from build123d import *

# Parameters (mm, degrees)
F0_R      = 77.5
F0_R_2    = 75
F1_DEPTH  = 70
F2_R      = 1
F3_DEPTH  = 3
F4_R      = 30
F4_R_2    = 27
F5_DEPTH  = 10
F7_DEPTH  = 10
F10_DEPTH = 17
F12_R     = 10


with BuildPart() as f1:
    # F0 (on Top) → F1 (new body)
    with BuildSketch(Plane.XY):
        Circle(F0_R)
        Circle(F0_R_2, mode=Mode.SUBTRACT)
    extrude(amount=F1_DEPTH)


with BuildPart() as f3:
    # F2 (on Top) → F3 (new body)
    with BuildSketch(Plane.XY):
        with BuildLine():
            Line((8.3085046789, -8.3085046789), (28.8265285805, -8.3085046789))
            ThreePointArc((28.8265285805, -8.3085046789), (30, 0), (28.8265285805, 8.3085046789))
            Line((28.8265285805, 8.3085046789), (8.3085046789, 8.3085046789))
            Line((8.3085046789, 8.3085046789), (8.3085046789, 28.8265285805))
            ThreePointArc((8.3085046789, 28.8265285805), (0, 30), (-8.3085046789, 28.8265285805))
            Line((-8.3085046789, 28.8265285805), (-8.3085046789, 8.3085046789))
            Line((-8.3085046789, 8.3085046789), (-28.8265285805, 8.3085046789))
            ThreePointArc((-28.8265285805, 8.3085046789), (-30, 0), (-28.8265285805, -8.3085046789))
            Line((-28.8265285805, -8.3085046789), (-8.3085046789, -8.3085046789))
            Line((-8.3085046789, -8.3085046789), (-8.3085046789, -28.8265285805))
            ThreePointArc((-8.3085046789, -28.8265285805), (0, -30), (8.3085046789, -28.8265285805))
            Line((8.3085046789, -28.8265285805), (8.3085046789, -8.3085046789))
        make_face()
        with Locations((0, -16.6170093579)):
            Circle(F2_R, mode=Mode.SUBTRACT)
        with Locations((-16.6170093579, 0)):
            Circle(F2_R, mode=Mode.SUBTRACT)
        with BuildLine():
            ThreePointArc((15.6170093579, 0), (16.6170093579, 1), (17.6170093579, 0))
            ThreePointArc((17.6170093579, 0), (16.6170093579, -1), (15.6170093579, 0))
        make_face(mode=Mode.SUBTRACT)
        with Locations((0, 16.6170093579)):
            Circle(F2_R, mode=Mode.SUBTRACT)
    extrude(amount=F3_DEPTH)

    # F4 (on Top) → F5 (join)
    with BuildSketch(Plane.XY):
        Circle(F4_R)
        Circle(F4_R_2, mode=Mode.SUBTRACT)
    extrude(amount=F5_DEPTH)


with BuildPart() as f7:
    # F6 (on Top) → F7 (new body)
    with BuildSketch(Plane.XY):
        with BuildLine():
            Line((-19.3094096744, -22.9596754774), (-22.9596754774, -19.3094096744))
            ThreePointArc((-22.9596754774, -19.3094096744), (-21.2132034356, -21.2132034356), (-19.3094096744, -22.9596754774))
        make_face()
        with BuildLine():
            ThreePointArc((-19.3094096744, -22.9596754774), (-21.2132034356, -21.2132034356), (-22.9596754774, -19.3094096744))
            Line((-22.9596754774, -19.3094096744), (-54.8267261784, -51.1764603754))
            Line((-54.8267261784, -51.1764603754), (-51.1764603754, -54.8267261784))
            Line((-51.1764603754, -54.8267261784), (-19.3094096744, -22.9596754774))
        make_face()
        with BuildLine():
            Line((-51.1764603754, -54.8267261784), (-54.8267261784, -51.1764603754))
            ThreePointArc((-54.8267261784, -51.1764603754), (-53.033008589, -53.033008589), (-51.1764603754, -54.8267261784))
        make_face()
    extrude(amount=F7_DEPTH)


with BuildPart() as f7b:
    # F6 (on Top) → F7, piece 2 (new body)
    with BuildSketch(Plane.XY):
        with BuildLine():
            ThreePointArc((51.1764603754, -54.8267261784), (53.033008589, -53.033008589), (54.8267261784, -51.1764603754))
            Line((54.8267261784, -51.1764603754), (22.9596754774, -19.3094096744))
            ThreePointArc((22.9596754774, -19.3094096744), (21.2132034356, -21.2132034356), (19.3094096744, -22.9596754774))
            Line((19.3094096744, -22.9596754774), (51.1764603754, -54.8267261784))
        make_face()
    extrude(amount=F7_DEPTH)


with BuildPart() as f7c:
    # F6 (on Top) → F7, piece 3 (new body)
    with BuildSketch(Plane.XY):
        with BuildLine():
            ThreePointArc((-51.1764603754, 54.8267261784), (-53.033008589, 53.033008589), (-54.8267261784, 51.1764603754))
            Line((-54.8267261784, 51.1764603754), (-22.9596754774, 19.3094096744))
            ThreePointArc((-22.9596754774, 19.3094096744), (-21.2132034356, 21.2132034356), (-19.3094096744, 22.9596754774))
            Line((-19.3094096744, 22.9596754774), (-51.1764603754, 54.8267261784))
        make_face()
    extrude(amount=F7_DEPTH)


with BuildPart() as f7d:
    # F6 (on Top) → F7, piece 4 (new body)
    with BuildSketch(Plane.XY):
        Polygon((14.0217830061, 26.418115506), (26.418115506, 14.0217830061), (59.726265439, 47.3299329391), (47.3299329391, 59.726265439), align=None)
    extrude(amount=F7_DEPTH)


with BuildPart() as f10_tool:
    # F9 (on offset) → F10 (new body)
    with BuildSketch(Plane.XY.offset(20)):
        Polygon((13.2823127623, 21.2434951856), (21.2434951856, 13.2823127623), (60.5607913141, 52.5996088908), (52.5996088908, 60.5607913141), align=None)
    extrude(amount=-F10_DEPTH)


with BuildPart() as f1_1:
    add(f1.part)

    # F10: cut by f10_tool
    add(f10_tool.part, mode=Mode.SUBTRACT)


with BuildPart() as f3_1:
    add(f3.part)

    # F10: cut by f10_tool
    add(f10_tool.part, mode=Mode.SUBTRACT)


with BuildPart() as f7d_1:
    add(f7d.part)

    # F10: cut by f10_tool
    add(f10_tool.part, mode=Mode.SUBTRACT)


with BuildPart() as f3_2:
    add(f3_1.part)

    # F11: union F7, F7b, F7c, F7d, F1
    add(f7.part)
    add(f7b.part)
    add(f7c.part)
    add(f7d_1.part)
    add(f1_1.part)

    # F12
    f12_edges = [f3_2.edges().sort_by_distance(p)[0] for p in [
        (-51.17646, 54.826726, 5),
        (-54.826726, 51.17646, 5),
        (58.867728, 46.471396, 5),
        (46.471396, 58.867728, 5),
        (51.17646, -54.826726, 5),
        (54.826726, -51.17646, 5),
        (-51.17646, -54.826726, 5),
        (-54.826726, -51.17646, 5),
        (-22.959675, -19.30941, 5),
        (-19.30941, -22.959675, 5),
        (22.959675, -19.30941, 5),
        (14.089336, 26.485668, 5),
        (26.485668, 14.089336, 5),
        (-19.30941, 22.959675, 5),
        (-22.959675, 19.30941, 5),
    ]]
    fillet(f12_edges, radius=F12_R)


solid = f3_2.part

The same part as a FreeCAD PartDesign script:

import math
import FreeCAD as App
import Part
import Sketcher
from FreeCAD import Vector
Q = App.Units.Quantity


def edges_at(feature, points):
    """Names of the edges that pass closest to the given points."""
    edges = feature.Shape.Edges
    near = lambda p: min(range(len(edges)), key=lambda i: edges[i].distToShape(Part.Vertex(*p))[0])
    return sorted({f"Edge{near(p) + 1}" for p in points})

doc = App.newDocument("Part")
body = doc.addObject("PartDesign::Body", "Body")

# Sketch on XY plane
sketch1 = doc.addObject("Sketcher::SketchObject", "Sketch")
body.addObject(sketch1)
sketch1.AttachmentSupport = (doc.XY_Plane, [""])
sketch1.MapMode = "FlatFace"
sketch1.addGeometry(Part.Circle(Vector(0, 0, 0), Vector(0, 0, 1), 77.5), False)
sketch1.addGeometry(Part.Circle(Vector(0, 0, 0), Vector(0, 0, 1), 75), False)
sketch1.addConstraint(Sketcher.Constraint("Coincident", 0, 3, -1, 1))
sketch1.addConstraint(Sketcher.Constraint("Coincident", 1, 3, -1, 1))
sketch1.addConstraint(Sketcher.Constraint("Diameter", 0, Q("155 mm")))
sketch1.addConstraint(Sketcher.Constraint("Diameter", 1, Q("150 mm")))
pad1 = doc.addObject("PartDesign::Pad", "Pad")
body.addObject(pad1)
pad1.Profile = sketch1
pad1.Length = 70
body2 = doc.addObject("PartDesign::Body", "Body001")

# Sketch on XY plane
sketch2 = doc.addObject("Sketcher::SketchObject", "Sketch001")
body2.addObject(sketch2)
sketch2.AttachmentSupport = (doc.getObject("XY_Plane001"), [""])
sketch2.MapMode = "FlatFace"
sketch2.addGeometry(Part.LineSegment(Vector(8.308505, -8.308505, 0), Vector(28.826529, -8.308505, 0)), False)
sketch2.addGeometry(Part.ArcOfCircle(Part.Circle(Vector(0, 0, 0), Vector(0, 0, 1), 30), math.radians(-16.078264), math.radians(16.078264)), False)
sketch2.addGeometry(Part.LineSegment(Vector(28.826529, 8.308505, 0), Vector(8.308505, 8.308505, 0)), False)
sketch2.addGeometry(Part.LineSegment(Vector(8.308505, 8.308505, 0), Vector(8.308505, 28.826529, 0)), False)
sketch2.addGeometry(Part.ArcOfCircle(Part.Circle(Vector(0, 0, 0), Vector(0, 0, 1), 30), math.radians(73.921736), math.radians(106.078264)), False)
sketch2.addGeometry(Part.LineSegment(Vector(-8.308505, 28.826529, 0), Vector(-8.308505, 8.308505, 0)), False)
sketch2.addGeometry(Part.LineSegment(Vector(-8.308505, 8.308505, 0), Vector(-28.826529, 8.308505, 0)), False)
sketch2.addGeometry(Part.ArcOfCircle(Part.Circle(Vector(0, 0, 0), Vector(0, 0, 1), 30), math.radians(163.921736), math.radians(196.078264)), False)
sketch2.addGeometry(Part.LineSegment(Vector(-28.826529, -8.308505, 0), Vector(-8.308505, -8.308505, 0)), False)
sketch2.addGeometry(Part.LineSegment(Vector(-8.308505, -8.308505, 0), Vector(-8.308505, -28.826529, 0)), False)
sketch2.addGeometry(Part.ArcOfCircle(Part.Circle(Vector(0, 0, 0), Vector(0, 0, 1), 30), math.radians(-106.078264), math.radians(-73.921736)), False)
sketch2.addGeometry(Part.LineSegment(Vector(8.308505, -28.826529, 0), Vector(8.308505, -8.308505, 0)), False)
sketch2.addGeometry(Part.Circle(Vector(0, -16.617009, 0), Vector(0, 0, 1), 1), False)
sketch2.addGeometry(Part.Circle(Vector(-16.617009, 0, 0), Vector(0, 0, 1), 1), False)
sketch2.addGeometry(Part.Circle(Vector(16.617009, 0, 0), Vector(0, 0, 1), 1), False)
sketch2.addGeometry(Part.Circle(Vector(0, 16.617009, 0), Vector(0, 0, 1), 1), False)
sketch2.addConstraint(Sketcher.Constraint("Coincident", 0, 2, 1, 1))
sketch2.addConstraint(Sketcher.Constraint("Coincident", 1, 2, 2, 1))
sketch2.addConstraint(Sketcher.Constraint("Coincident", 2, 2, 3, 1))
sketch2.addConstraint(Sketcher.Constraint("Coincident", 3, 2, 4, 1))
sketch2.addConstraint(Sketcher.Constraint("Coincident", 4, 2, 5, 1))
sketch2.addConstraint(Sketcher.Constraint("Coincident", 5, 2, 6, 1))
sketch2.addConstraint(Sketcher.Constraint("Coincident", 6, 2, 7, 1))
sketch2.addConstraint(Sketcher.Constraint("Coincident", 7, 2, 8, 1))
sketch2.addConstraint(Sketcher.Constraint("Coincident", 8, 2, 9, 1))
sketch2.addConstraint(Sketcher.Constraint("Coincident", 9, 2, 10, 1))
sketch2.addConstraint(Sketcher.Constraint("Coincident", 10, 2, 11, 1))
sketch2.addConstraint(Sketcher.Constraint("Coincident", 11, 2, 0, 1))
sketch2.addConstraint(Sketcher.Constraint("Horizontal", 0))
sketch2.addConstraint(Sketcher.Constraint("Horizontal", 2))
sketch2.addConstraint(Sketcher.Constraint("Vertical", 3))
sketch2.addConstraint(Sketcher.Constraint("Vertical", 5))
sketch2.addConstraint(Sketcher.Constraint("Horizontal", 6))
sketch2.addConstraint(Sketcher.Constraint("Horizontal", 8))
sketch2.addConstraint(Sketcher.Constraint("Vertical", 9))
sketch2.addConstraint(Sketcher.Constraint("Vertical", 11))
sketch2.addConstraint(Sketcher.Constraint("Coincident", 1, 3, -1, 1))
sketch2.addConstraint(Sketcher.Constraint("Coincident", 4, 3, -1, 1))
sketch2.addConstraint(Sketcher.Constraint("Coincident", 7, 3, -1, 1))
sketch2.addConstraint(Sketcher.Constraint("Coincident", 10, 3, -1, 1))
sketch2.addConstraint(Sketcher.Constraint("Equal", 1, 4))
sketch2.addConstraint(Sketcher.Constraint("Equal", 4, 7))
sketch2.addConstraint(Sketcher.Constraint("Equal", 7, 10))
sketch2.addConstraint(Sketcher.Constraint("Equal", 12, 13))
sketch2.addConstraint(Sketcher.Constraint("Equal", 13, 14))
sketch2.addConstraint(Sketcher.Constraint("Equal", 14, 15))
sketch2.addConstraint(Sketcher.Constraint("Symmetric", 13, 3, 14, 3, -1, 1))
sketch2.addConstraint(Sketcher.Constraint("Symmetric", 12, 3, 15, 3, -1, 1))
sketch2.addConstraint(Sketcher.Constraint("Symmetric", 2, 2, 8, 2, -1, 1))
sketch2.addConstraint(Sketcher.Constraint("Symmetric", 5, 2, 11, 2, -1, 1))
sketch2.addConstraint(Sketcher.Constraint("Symmetric", 2, 2, 5, 2, -2))
sketch2.addConstraint(Sketcher.Constraint("PointOnObject", 12, 3, -2))
sketch2.addConstraint(Sketcher.Constraint("PointOnObject", 13, 3, -1))
sketch2.addConstraint(Sketcher.Constraint("Equal", 8, 3))
sketch2.addConstraint(Sketcher.Constraint("Diameter", 12, Q("2 mm")))
sketch2.addConstraint(Sketcher.Constraint("Radius", 1, Q("30 mm")))
sketch2.addConstraint(Sketcher.Constraint("DistanceX", 0, 1, 0, 2, Q("20.518024 mm")))
sketch2.addConstraint(Sketcher.Constraint("DistanceY", 12, 3, -1, 1, Q("16.617009 mm")))
sketch2.addConstraint(Sketcher.Constraint("DistanceX", 13, 3, -1, 1, Q("16.617009 mm")))
pad2 = doc.addObject("PartDesign::Pad", "Pad001")
body2.addObject(pad2)
pad2.Profile = sketch2
pad2.Length = 3

# Sketch on XY plane
sketch3 = doc.addObject("Sketcher::SketchObject", "Sketch002")
body2.addObject(sketch3)
sketch3.AttachmentSupport = (doc.getObject("XY_Plane001"), [""])
sketch3.MapMode = "FlatFace"
sketch3.addGeometry(Part.Circle(Vector(0, 0, 0), Vector(0, 0, 1), 30), False)
sketch3.addGeometry(Part.Circle(Vector(0, 0, 0), Vector(0, 0, 1), 27), False)
sketch3.addConstraint(Sketcher.Constraint("Coincident", 0, 3, -1, 1))
sketch3.addConstraint(Sketcher.Constraint("Coincident", 1, 3, -1, 1))
sketch3.addConstraint(Sketcher.Constraint("Diameter", 0, Q("60 mm")))
sketch3.addConstraint(Sketcher.Constraint("Diameter", 1, Q("54 mm")))
pad3 = doc.addObject("PartDesign::Pad", "Pad002")
body2.addObject(pad3)
pad3.Profile = sketch3
pad3.Length = 10
body3 = doc.addObject("PartDesign::Body", "Body002")

# Sketch on XY plane
sketch4 = doc.addObject("Sketcher::SketchObject", "Sketch003")
body3.addObject(sketch4)
sketch4.AttachmentSupport = (doc.getObject("XY_Plane002"), [""])
sketch4.MapMode = "FlatFace"
sketch4.addGeometry(Part.LineSegment(Vector(-19.30941, -22.959675, 0), Vector(-22.959675, -19.30941, 0)), False)
sketch4.addGeometry(Part.LineSegment(Vector(-22.959675, -19.30941, 0), Vector(-54.826726, -51.17646, 0)), False)
sketch4.addGeometry(Part.ArcOfCircle(Part.Circle(Vector(0, 0, 0), Vector(0, 0, 1), 75), math.radians(-136.972226), math.radians(-133.027774)), False)
sketch4.addGeometry(Part.LineSegment(Vector(-51.17646, -54.826726, 0), Vector(-19.30941, -22.959675, 0)), False)
sketch4.addConstraint(Sketcher.Constraint("Coincident", 0, 2, 1, 1))
sketch4.addConstraint(Sketcher.Constraint("Coincident", 1, 2, 2, 1))
sketch4.addConstraint(Sketcher.Constraint("Coincident", 2, 2, 3, 1))
sketch4.addConstraint(Sketcher.Constraint("Coincident", 3, 2, 0, 1))
sketch4.addConstraint(Sketcher.Constraint("Coincident", 2, 3, -1, 1))
sketch4.addConstraint(Sketcher.Constraint("Perpendicular", 0, 1))
sketch4.addConstraint(Sketcher.Constraint("Parallel", 1, 3))
sketch4.addConstraint(Sketcher.Constraint("Equal", 1, 3))
sketch4.addConstraint(Sketcher.Constraint("Radius", 2, Q("75 mm")))
sketch4.addConstraint(Sketcher.Constraint("Angle", 0, Q("135 deg")))
sketch4.addConstraint(Sketcher.Constraint("DistanceY", 0, 2, -1, 1, Q("19.30941 mm")))
sketch4.addConstraint(Sketcher.Constraint("DistanceY", 1, 2, -1, 1, Q("51.17646 mm")))
pad4 = doc.addObject("PartDesign::Pad", "Pad003")
body3.addObject(pad4)
pad4.Profile = sketch4
pad4.Length = 10
body4 = doc.addObject("PartDesign::Body", "Body003")

# Sketch on XY plane
sketch5 = doc.addObject("Sketcher::SketchObject", "Sketch004")
body4.addObject(sketch5)
sketch5.AttachmentSupport = (doc.getObject("XY_Plane003"), [""])
sketch5.MapMode = "FlatFace"
sketch5.addGeometry(Part.ArcOfCircle(Part.Circle(Vector(0, 0, 0), Vector(0, 0, 1), 75), math.radians(-46.972226), math.radians(-43.027774)), False)
sketch5.addGeometry(Part.LineSegment(Vector(54.826726, -51.17646, 0), Vector(22.959675, -19.30941, 0)), False)
sketch5.addGeometry(Part.ArcOfCircle(Part.Circle(Vector(0, 0, 0), Vector(0, 0, 1), 30), math.radians(-49.935693), math.radians(-40.064307)), False)
sketch5.addGeometry(Part.LineSegment(Vector(19.30941, -22.959675, 0), Vector(51.17646, -54.826726, 0)), False)
sketch5.addConstraint(Sketcher.Constraint("Coincident", 0, 2, 1, 1))
sketch5.addConstraint(Sketcher.Constraint("Coincident", 1, 2, 2, 2))
sketch5.addConstraint(Sketcher.Constraint("Coincident", 2, 1, 3, 1))
sketch5.addConstraint(Sketcher.Constraint("Coincident", 3, 2, 0, 1))
sketch5.addConstraint(Sketcher.Constraint("Coincident", 0, 3, -1, 1))
sketch5.addConstraint(Sketcher.Constraint("Coincident", 2, 3, -1, 1))
sketch5.addConstraint(Sketcher.Constraint("Parallel", 1, 3))
sketch5.addConstraint(Sketcher.Constraint("Equal", 1, 3))
sketch5.addConstraint(Sketcher.Constraint("Radius", 0, Q("75 mm")))
sketch5.addConstraint(Sketcher.Constraint("Radius", 2, Q("30 mm")))
sketch5.addConstraint(Sketcher.Constraint("Angle", 1, Q("135 deg")))
sketch5.addConstraint(Sketcher.Constraint("DistanceY", 0, 2, -1, 1, Q("51.17646 mm")))
pad5 = doc.addObject("PartDesign::Pad", "Pad004")
body4.addObject(pad5)
pad5.Profile = sketch5
pad5.Length = 10
body5 = doc.addObject("PartDesign::Body", "Body004")

# Sketch on XY plane
sketch6 = doc.addObject("Sketcher::SketchObject", "Sketch005")
body5.addObject(sketch6)
sketch6.AttachmentSupport = (doc.getObject("XY_Plane004"), [""])
sketch6.MapMode = "FlatFace"
sketch6.addGeometry(Part.ArcOfCircle(Part.Circle(Vector(0, 0, 0), Vector(0, 0, 1), 75), math.radians(133.027774), math.radians(136.972226)), False)
sketch6.addGeometry(Part.LineSegment(Vector(-54.826726, 51.17646, 0), Vector(-22.959675, 19.30941, 0)), False)
sketch6.addGeometry(Part.ArcOfCircle(Part.Circle(Vector(0, 0, 0), Vector(0, 0, 1), 30), math.radians(130.064307), math.radians(139.935693)), False)
sketch6.addGeometry(Part.LineSegment(Vector(-19.30941, 22.959675, 0), Vector(-51.17646, 54.826726, 0)), False)
sketch6.addConstraint(Sketcher.Constraint("Coincident", 0, 2, 1, 1))
sketch6.addConstraint(Sketcher.Constraint("Coincident", 1, 2, 2, 2))
sketch6.addConstraint(Sketcher.Constraint("Coincident", 2, 1, 3, 1))
sketch6.addConstraint(Sketcher.Constraint("Coincident", 3, 2, 0, 1))
sketch6.addConstraint(Sketcher.Constraint("Coincident", 0, 3, -1, 1))
sketch6.addConstraint(Sketcher.Constraint("Coincident", 2, 3, -1, 1))
sketch6.addConstraint(Sketcher.Constraint("Parallel", 1, 3))
sketch6.addConstraint(Sketcher.Constraint("Equal", 1, 3))
sketch6.addConstraint(Sketcher.Constraint("Radius", 0, Q("75 mm")))
sketch6.addConstraint(Sketcher.Constraint("Radius", 2, Q("30 mm")))
sketch6.addConstraint(Sketcher.Constraint("Angle", 1, Q("-45 deg")))
sketch6.addConstraint(Sketcher.Constraint("DistanceY", -1, 1, 0, 2, Q("51.17646 mm")))
pad6 = doc.addObject("PartDesign::Pad", "Pad005")
body5.addObject(pad6)
pad6.Profile = sketch6
pad6.Length = 10
body6 = doc.addObject("PartDesign::Body", "Body005")

# Sketch on XY plane
sketch7 = doc.addObject("Sketcher::SketchObject", "Sketch006")
body6.addObject(sketch7)
sketch7.AttachmentSupport = (doc.getObject("XY_Plane005"), [""])
sketch7.MapMode = "FlatFace"
sketch7.addGeometry(Part.LineSegment(Vector(14.021783, 26.418116, 0), Vector(26.418116, 14.021783, 0)), False)
sketch7.addGeometry(Part.LineSegment(Vector(26.418116, 14.021783, 0), Vector(59.726265, 47.329933, 0)), False)
sketch7.addGeometry(Part.LineSegment(Vector(59.726265, 47.329933, 0), Vector(47.329933, 59.726265, 0)), False)
sketch7.addGeometry(Part.LineSegment(Vector(47.329933, 59.726265, 0), Vector(14.021783, 26.418116, 0)), False)
sketch7.addConstraint(Sketcher.Constraint("Coincident", 0, 2, 1, 1))
sketch7.addConstraint(Sketcher.Constraint("Coincident", 1, 2, 2, 1))
sketch7.addConstraint(Sketcher.Constraint("Coincident", 2, 2, 3, 1))
sketch7.addConstraint(Sketcher.Constraint("Coincident", 3, 2, 0, 1))
sketch7.addConstraint(Sketcher.Constraint("Perpendicular", 0, 1))
sketch7.addConstraint(Sketcher.Constraint("Perpendicular", 1, 2))
sketch7.addConstraint(Sketcher.Constraint("Perpendicular", 2, 3))
sketch7.addConstraint(Sketcher.Constraint("Angle", 0, Q("-45 deg")))
sketch7.addConstraint(Sketcher.Constraint("Distance", 0, Q("17.531062 mm")))
sketch7.addConstraint(Sketcher.Constraint("DistanceX", 0, 2, 1, 2, Q("33.30815 mm")))
sketch7.addConstraint(Sketcher.Constraint("DistanceX", -1, 1, 0, 2, Q("26.418116 mm")))
sketch7.addConstraint(Sketcher.Constraint("DistanceY", -1, 1, 0, 2, Q("14.021783 mm")))
pad7 = doc.addObject("PartDesign::Pad", "Pad006")
body6.addObject(pad7)
pad7.Profile = sketch7
pad7.Length = 10
body7 = doc.addObject("PartDesign::Body", "Body006")

# Sketch on XY plane
sketch8 = doc.addObject("Sketcher::SketchObject", "Sketch007")
body7.addObject(sketch8)
sketch8.AttachmentSupport = (doc.getObject("XY_Plane006"), [""])
sketch8.MapMode = "FlatFace"
sketch8.AttachmentOffset = App.Placement(Vector(0, 0, 20), App.Rotation())
sketch8.addGeometry(Part.LineSegment(Vector(13.282313, 21.243495, 0), Vector(21.243495, 13.282313, 0)), False)
sketch8.addGeometry(Part.LineSegment(Vector(21.243495, 13.282313, 0), Vector(60.560791, 52.599609, 0)), False)
sketch8.addGeometry(Part.LineSegment(Vector(60.560791, 52.599609, 0), Vector(52.599609, 60.560791, 0)), False)
sketch8.addGeometry(Part.LineSegment(Vector(52.599609, 60.560791, 0), Vector(13.282313, 21.243495, 0)), False)
sketch8.addConstraint(Sketcher.Constraint("Coincident", 0, 2, 1, 1))
sketch8.addConstraint(Sketcher.Constraint("Coincident", 1, 2, 2, 1))
sketch8.addConstraint(Sketcher.Constraint("Coincident", 2, 2, 3, 1))
sketch8.addConstraint(Sketcher.Constraint("Coincident", 3, 2, 0, 1))
sketch8.addConstraint(Sketcher.Constraint("Perpendicular", 0, 1))
sketch8.addConstraint(Sketcher.Constraint("Perpendicular", 1, 2))
sketch8.addConstraint(Sketcher.Constraint("Perpendicular", 2, 3))
sketch8.addConstraint(Sketcher.Constraint("Angle", 0, Q("-45 deg")))
sketch8.addConstraint(Sketcher.Constraint("DistanceX", -1, 1, 1, 2, Q("60.560791 mm")))
sketch8.addConstraint(Sketcher.Constraint("DistanceY", -1, 1, 1, 2, Q("52.599609 mm")))
sketch8.addConstraint(Sketcher.Constraint("DistanceX", -1, 1, 2, 2, Q("52.599609 mm")))
sketch8.addConstraint(Sketcher.Constraint("DistanceY", 0, 2, 2, 2, Q("47.278479 mm")))
pad8 = doc.addObject("PartDesign::Pad", "Pad007")
body7.addObject(pad8)
pad8.Profile = sketch8
pad8.Length = 17
pad8.Reversed = True
doc.recompute()

body8 = doc.addObject("PartDesign::Body", "Body007")
body8.BaseFeature = body7
boolean = doc.addObject("PartDesign::Boolean", "Boolean")
body.addObject(boolean)
boolean.Type = "Cut"
boolean.addObjects([body8])
doc.recompute()

body9 = doc.addObject("PartDesign::Body", "Body008")
body9.BaseFeature = body7
boolean2 = doc.addObject("PartDesign::Boolean", "Boolean001")
body2.addObject(boolean2)
boolean2.Type = "Cut"
boolean2.addObjects([body9])
doc.recompute()

boolean3 = doc.addObject("PartDesign::Boolean", "Boolean002")
body6.addObject(boolean3)
boolean3.Type = "Cut"
boolean3.addObjects([body7])
doc.recompute()

boolean4 = doc.addObject("PartDesign::Boolean", "Boolean003")
body2.addObject(boolean4)
boolean4.Type = "Fuse"
boolean4.addObjects([body3])
doc.recompute()

boolean5 = doc.addObject("PartDesign::Boolean", "Boolean004")
body2.addObject(boolean5)
boolean5.Type = "Fuse"
boolean5.addObjects([body4])
doc.recompute()

boolean6 = doc.addObject("PartDesign::Boolean", "Boolean005")
body2.addObject(boolean6)
boolean6.Type = "Fuse"
boolean6.addObjects([body5])
doc.recompute()

boolean7 = doc.addObject("PartDesign::Boolean", "Boolean006")
body2.addObject(boolean7)
boolean7.Type = "Fuse"
boolean7.addObjects([body6])
doc.recompute()

boolean8 = doc.addObject("PartDesign::Boolean", "Boolean007")
body2.addObject(boolean8)
boolean8.Type = "Fuse"
boolean8.addObjects([body])
doc.recompute()

fillet = doc.addObject("PartDesign::Fillet", "Fillet")
body2.addObject(fillet)
fillet.Base = (boolean8, edges_at(boolean8, [
    (-51.176, 54.827, 5),
    (-54.827, 51.176, 5),
    (58.868, 46.471, 5),
    (46.471, 58.868, 5),
    (51.176, -54.827, 5),
    (54.827, -51.176, 5),
    (-51.176, -54.827, 5),
    (-54.827, -51.176, 5),
    (-22.96, -19.309, 5),
    (-19.309, -22.96, 5),
    (22.96, -19.309, 5),
    (14.089, 26.486, 5),
    (26.486, 14.089, 5),
    (-19.309, 22.96, 5),
    (-22.96, 19.309, 5),
]))
fillet.Radius = 10

doc.recompute()
